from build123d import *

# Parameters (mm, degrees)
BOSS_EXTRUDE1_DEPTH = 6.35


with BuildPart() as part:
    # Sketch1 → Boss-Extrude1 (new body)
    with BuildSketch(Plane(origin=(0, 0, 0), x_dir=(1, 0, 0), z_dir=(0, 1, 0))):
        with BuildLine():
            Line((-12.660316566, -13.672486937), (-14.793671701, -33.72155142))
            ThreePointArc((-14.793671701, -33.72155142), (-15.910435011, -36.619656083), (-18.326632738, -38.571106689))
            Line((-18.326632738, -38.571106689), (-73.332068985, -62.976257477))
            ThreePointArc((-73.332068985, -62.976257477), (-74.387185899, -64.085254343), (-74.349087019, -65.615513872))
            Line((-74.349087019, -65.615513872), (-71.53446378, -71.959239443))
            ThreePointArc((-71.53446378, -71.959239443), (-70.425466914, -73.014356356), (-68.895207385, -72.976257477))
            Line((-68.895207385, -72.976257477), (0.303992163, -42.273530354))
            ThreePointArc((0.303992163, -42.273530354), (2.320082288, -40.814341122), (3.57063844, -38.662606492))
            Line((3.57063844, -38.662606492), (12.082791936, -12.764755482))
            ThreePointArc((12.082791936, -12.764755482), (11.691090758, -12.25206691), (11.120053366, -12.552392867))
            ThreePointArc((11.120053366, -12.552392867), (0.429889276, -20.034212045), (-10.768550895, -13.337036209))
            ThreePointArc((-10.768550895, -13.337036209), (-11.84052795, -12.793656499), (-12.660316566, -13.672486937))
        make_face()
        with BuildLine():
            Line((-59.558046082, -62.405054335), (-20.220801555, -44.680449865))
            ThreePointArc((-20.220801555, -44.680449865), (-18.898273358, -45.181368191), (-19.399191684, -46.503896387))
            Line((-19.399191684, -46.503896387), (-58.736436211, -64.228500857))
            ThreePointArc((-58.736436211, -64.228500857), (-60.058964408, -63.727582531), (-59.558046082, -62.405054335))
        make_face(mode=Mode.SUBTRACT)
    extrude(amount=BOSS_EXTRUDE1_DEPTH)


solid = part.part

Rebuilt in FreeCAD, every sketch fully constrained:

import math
import FreeCAD as App
import Part
import Sketcher
from FreeCAD import Vector

doc = App.newDocument("Part")
body = doc.addObject("PartDesign::Body", "Body")

sketch1 = body.newObject("Sketcher::SketchObject", "Sketch")
sketch1.AttachmentSupport = (doc.getObject("XZ_Plane"), [""])
sketch1.MapMode = "FlatFace"
sketch1.addGeometry(Part.LineSegment(Vector(-12.660317, 13.672487, 0), Vector(-14.793672, 33.721551, 0)), False)
sketch1.addGeometry(Part.ArcOfCircle(Part.Circle(Vector(-20.75999, 33.086695, 0), Vector(0, 0, 1), 6), math.radians(6.073801), math.radians(66.073801)), False)
sketch1.addGeometry(Part.LineSegment(Vector(-18.326633, 38.571107, 0), Vector(-73.332069, 62.976257, 0)), False)
sketch1.addGeometry(Part.ArcOfCircle(Part.Circle(Vector(-72.52095, 64.804395, 0), Vector(0, 0, 1), 2), math.radians(156.073801), math.radians(246.073801)), False)
sketch1.addGeometry(Part.LineSegment(Vector(-74.349087, 65.615514, 0), Vector(-71.534464, 71.959239, 0)), False)
sketch1.addGeometry(Part.ArcOfCircle(Part.Circle(Vector(-69.706327, 71.14812, 0), Vector(0, 0, 1), 2), math.radians(66.073801), math.radians(156.073801)), False)
sketch1.addGeometry(Part.LineSegment(Vector(-68.895207, 72.976257, 0), Vector(0.303992, 42.27353, 0)), False)
sketch1.addGeometry(Part.ArcOfCircle(Part.Circle(Vector(-2.129365, 36.789119, 0), Vector(0, 0, 1), 6), math.radians(18.194756), math.radians(66.073801)), False)
sketch1.addGeometry(Part.LineSegment(Vector(3.570638, 38.662606, 0), Vector(12.082792, 12.764755, 0)), False)
sketch1.addGeometry(Part.ArcOfCircle(Part.Circle(Vector(11.583389, 12.740329, 0), Vector(0, 0, 1), 0.5), math.radians(-157.921709), math.radians(2.800131)), False)
sketch1.addGeometry(Part.ArcOfCircle(Part.Circle(Vector(0, 8.041915, 0), Vector(0, 0, 1), 12), math.radians(22.078291), math.radians(153.81569)), False)
sketch1.addGeometry(Part.ArcOfCircle(Part.Circle(Vector(-11.66593, 13.778296, 0), Vector(0, 0, 1), 1), math.radians(-173.926199), math.radians(-26.18431)), False)
sketch1.addGeometry(Part.ArcOfCircle(Part.Circle(Vector(-59.147241, 63.316778, 0), Vector(0, 0, 1), 1), math.radians(65.74459), math.radians(245.74459)), False)
sketch1.addGeometry(Part.LineSegment(Vector(-59.558046, 62.405054, 0), Vector(-20.220802, 44.68045, 0)), False)
sketch1.addGeometry(Part.ArcOfCircle(Part.Circle(Vector(-19.809997, 45.592173, 0), Vector(0, 0, 1), 1), math.radians(-114.25541), math.radians(65.74459)), False)
sketch1.addGeometry(Part.LineSegment(Vector(-19.399192, 46.503896, 0), Vector(-58.736436, 64.228501, 0)), False)
sketch1.addConstraint(Sketcher.Constraint("Coincident", 0, 2, 1, 1))
sketch1.addConstraint(Sketcher.Constraint("Coincident", 1, 2, 2, 1))
sketch1.addConstraint(Sketcher.Constraint("Coincident", 2, 2, 3, 2))
sketch1.addConstraint(Sketcher.Constraint("Coincident", 3, 1, 4, 1))
sketch1.addConstraint(Sketcher.Constraint("Coincident", 4, 2, 5, 2))
sketch1.addConstraint(Sketcher.Constraint("Coincident", 5, 1, 6, 1))
sketch1.addConstraint(Sketcher.Constraint("Coincident", 6, 2, 7, 2))
sketch1.addConstraint(Sketcher.Constraint("Coincident", 7, 1, 8, 1))
sketch1.addConstraint(Sketcher.Constraint("Coincident", 8, 2, 9, 2))
sketch1.addConstraint(Sketcher.Constraint("Coincident", 9, 1, 10, 1))
sketch1.addConstraint(Sketcher.Constraint("Coincident", 10, 2, 11, 2))
sketch1.addConstraint(Sketcher.Constraint("Coincident", 11, 1, 0, 1))
sketch1.addConstraint(Sketcher.Constraint("Coincident", 12, 2, 13, 1))
sketch1.addConstraint(Sketcher.Constraint("Coincident", 13, 2, 14, 1))
sketch1.addConstraint(Sketcher.Constraint("Coincident", 14, 2, 15, 1))
sketch1.addConstraint(Sketcher.Constraint("Coincident", 15, 2, 12, 1))
sketch1.addConstraint(Sketcher.Constraint("PointOnObject", 10, 3, -2))
sketch1.addConstraint(Sketcher.Constraint("Radius", 1, 6.0))
sketch1.addConstraint(Sketcher.Constraint("Radius", 3, 2.0))
sketch1.addConstraint(Sketcher.Constraint("Radius", 5, 2.0))
sketch1.addConstraint(Sketcher.Constraint("Radius", 7, 6.0))
sketch1.addConstraint(Sketcher.Constraint("Radius", 10, 12.0))
sketch1.addConstraint(Sketcher.Constraint("Radius", 11, 1.0))
sketch1.addConstraint(Sketcher.Constraint("Radius", 12, 1.0))
sketch1.addConstraint(Sketcher.Constraint("Radius", 14, 1.0))
sketch1.addConstraint(Sketcher.Constraint("Radius", 9, 0.5))
sketch1.addConstraint(Sketcher.Constraint("DistanceY", 2, 2, 5, 1, 10.0))
sketch1.addConstraint(Sketcher.Constraint("DistanceY", 7, 3, 5, 3, 34.359002))
sketch1.addConstraint(Sketcher.Constraint("Distance", 6, 75.704601))
sketch1.addConstraint(Sketcher.Constraint("DistanceX", 13, 2, -1, 1, 20.220802))
sketch1.addConstraint(Sketcher.Constraint("DistanceY", -1, 1, 15, 2, 64.228501))
sketch1.addConstraint(Sketcher.Constraint("DistanceY", 1, 3, 3, 3, 31.7177))
sketch1.addConstraint(Sketcher.Constraint("DistanceY", 11, 3, 1, 3, 19.308399))
sketch1.addConstraint(Sketcher.Constraint("DistanceY", 1, 2, 7, 1, 0.0915))
sketch1.addConstraint(Sketcher.Constraint("DistanceY", 0, 2, 13, 2, 10.958898))
sketch1.addConstraint(Sketcher.Constraint("DistanceX", 1, 3, 14, 2, 1.360799))
sketch1.addConstraint(Sketcher.Constraint("DistanceY", 1, 3, 14, 2, 13.417201))
sketch1.addConstraint(Sketcher.Constraint("DistanceX", 1, 3, -1, 1, 20.75999))
sketch1.addConstraint(Sketcher.Constraint("DistanceX", 3, 3, -1, 1, 72.52095))
sketch1.addConstraint(Sketcher.Constraint("DistanceY", -1, 1, 5, 3, 71.14812))
sketch1.addConstraint(Sketcher.Constraint("DistanceX", -1, 1, 9, 3, 11.583389))
sketch1.addConstraint(Sketcher.Constraint("DistanceY", -1, 1, 9, 3, 12.740329))
sketch1.addConstraint(Sketcher.Constraint("DistanceX", 11, 3, -1, 1, 11.66593))
sketch1.addConstraint(Sketcher.Constraint("DistanceX", 12, 3, -1, 1, 59.147241))
sketch1.addConstraint(Sketcher.Constraint("DistanceX", 2, 2, -1, 1, 73.332069))
sketch1.addConstraint(Sketcher.Constraint("DistanceY", -1, 1, 4, 2, 71.959239))
sketch1.addConstraint(Sketcher.Constraint("DistanceY", -1, 1, 6, 2, 42.27353))
sketch1.addConstraint(Sketcher.Constraint("DistanceX", -1, 1, 7, 1, 3.570638))
sketch1.addConstraint(Sketcher.Constraint("DistanceX", -1, 1, 8, 2, 12.082792))
sketch1.addConstraint(Sketcher.Constraint("DistanceX", 10, 2, -1, 1, 10.768551))
sketch1.addConstraint(Sketcher.Constraint("DistanceY", 7, 3, 12, 3, 26.527659))
sketch1.addConstraint(Sketcher.Constraint("DistanceY", 1, 3, 14, 3, 12.505478))
sketch1.addConstraint(Sketcher.Constraint("DistanceX", 14, 3, 7, 3, 17.680631))
sketch1.addConstraint(Sketcher.Constraint("DistanceY", 3, 3, 3, 1, 0.811119))
sketch1.addConstraint(Sketcher.Constraint("DistanceX", 9, 1, 8, 2, 0.962739))
sketch1.addConstraint(Sketcher.Constraint("DistanceY", 11, 1, 11, 3, 0.105809))
sketch1.addConstraint(Sketcher.Constraint("DistanceY", 12, 2, 3, 3, 2.39934))
pad1 = body.newObject("PartDesign::Pad", "Pad")
pad1.Profile = sketch1
pad1.Length = 6.35
pad1.Reversed = True

doc.recompute()
